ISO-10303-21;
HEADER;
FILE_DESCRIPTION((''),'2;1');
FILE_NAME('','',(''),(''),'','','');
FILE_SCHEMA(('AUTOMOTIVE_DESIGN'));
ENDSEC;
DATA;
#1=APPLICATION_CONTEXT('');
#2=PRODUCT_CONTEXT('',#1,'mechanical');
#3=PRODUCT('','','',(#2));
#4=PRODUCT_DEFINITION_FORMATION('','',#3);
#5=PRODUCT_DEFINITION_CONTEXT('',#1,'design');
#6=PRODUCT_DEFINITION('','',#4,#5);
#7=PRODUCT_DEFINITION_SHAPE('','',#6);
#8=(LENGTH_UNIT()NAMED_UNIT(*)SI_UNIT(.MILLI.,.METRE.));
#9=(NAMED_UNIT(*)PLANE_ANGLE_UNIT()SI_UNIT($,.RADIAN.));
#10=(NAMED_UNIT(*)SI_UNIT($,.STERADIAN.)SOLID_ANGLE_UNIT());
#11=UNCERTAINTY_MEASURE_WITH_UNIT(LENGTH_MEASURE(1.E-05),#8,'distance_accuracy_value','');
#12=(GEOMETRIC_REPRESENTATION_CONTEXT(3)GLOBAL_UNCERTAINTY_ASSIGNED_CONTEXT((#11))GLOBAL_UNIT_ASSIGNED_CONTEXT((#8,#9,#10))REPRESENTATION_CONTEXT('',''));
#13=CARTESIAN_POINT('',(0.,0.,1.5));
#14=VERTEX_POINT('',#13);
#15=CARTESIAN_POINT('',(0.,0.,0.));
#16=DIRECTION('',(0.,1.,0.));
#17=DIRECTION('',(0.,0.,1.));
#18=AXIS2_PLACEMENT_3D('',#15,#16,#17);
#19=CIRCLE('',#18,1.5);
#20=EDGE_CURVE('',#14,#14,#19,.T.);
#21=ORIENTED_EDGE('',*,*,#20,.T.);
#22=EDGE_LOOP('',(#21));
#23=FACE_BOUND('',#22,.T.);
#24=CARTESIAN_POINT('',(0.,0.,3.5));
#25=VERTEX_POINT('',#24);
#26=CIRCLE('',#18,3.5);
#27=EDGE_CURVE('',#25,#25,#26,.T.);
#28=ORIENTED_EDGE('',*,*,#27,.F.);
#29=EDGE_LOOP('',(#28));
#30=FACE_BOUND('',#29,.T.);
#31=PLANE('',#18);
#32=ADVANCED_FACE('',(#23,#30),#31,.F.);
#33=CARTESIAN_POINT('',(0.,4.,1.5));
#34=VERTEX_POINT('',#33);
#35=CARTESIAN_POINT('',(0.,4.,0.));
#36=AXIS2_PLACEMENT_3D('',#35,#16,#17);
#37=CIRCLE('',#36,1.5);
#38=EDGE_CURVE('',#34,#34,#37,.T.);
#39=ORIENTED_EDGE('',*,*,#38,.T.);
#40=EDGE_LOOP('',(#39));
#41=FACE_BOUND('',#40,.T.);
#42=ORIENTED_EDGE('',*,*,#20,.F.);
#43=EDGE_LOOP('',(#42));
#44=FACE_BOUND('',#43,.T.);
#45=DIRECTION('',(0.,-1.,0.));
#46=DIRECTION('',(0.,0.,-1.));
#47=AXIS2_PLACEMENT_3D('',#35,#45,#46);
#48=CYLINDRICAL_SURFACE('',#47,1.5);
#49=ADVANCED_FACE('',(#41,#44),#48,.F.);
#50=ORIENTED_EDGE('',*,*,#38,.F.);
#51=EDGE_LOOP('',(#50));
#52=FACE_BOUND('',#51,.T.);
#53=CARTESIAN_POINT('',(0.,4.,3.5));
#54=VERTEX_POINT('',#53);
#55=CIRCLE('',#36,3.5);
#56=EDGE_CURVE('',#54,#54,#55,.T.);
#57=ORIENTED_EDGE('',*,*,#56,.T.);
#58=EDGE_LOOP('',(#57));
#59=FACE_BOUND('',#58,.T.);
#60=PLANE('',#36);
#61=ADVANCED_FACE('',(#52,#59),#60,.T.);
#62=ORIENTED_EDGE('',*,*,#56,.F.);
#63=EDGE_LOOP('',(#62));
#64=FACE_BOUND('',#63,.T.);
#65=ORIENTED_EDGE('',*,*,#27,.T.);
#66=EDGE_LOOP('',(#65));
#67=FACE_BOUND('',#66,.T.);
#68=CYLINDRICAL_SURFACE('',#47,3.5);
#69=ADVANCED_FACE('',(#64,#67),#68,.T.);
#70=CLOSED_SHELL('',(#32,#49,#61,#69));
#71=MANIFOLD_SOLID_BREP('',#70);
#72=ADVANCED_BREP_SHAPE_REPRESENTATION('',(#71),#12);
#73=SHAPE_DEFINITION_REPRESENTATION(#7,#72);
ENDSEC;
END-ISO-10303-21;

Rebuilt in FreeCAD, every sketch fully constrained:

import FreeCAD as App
import Part
import Sketcher
Q = App.Units.Quantity

doc = App.newDocument("Part")
params = doc.addObject("Spreadsheet::Sheet", "Params")
for row, (alias, value) in enumerate([
    ("sketch1_diameter", "7 mm"),
    ("sketch1_diameter2", "3 mm"),
    ("pad1_length", "4 mm"),
], start=1):
    params.set(f"A{row}", alias)
    params.set(f"B{row}", "=" + value)
    params.setAlias(f"B{row}", alias)

body = doc.addObject("PartDesign::Body", "Body")

sketch1 = body.newObject("Sketcher::SketchObject", "Sketch")
sketch1.AttachmentSupport = (doc.getObject("XZ_Plane"), [""])
sketch1.MapMode = "FlatFace"
sketch1.addGeometry([
    Part.Circle(App.Vector(0, 0, 0), App.Vector(0, 0, 1), 3.5),
    Part.Circle(App.Vector(0, 0, 0), App.Vector(0, 0, 1), 1.5),
], False)
sketch1.addConstraint([
    Sketcher.Constraint("Coincident", 0, 3, -1, 1),
    Sketcher.Constraint("Coincident", 1, 3, -1, 1),
    Sketcher.Constraint("Diameter", 0, Q("7 mm")),
    Sketcher.Constraint("Diameter", 1, Q("3 mm")),
])
sketch1.setExpression("Constraints[2]", "Params.sketch1_diameter")
sketch1.setExpression("Constraints[3]", "Params.sketch1_diameter2")
pad1 = body.newObject("PartDesign::Pad", "Pad")
pad1.Profile = sketch1
pad1.setExpression("Length", "Params.pad1_length")
pad1.Reversed = True

doc.recompute()
